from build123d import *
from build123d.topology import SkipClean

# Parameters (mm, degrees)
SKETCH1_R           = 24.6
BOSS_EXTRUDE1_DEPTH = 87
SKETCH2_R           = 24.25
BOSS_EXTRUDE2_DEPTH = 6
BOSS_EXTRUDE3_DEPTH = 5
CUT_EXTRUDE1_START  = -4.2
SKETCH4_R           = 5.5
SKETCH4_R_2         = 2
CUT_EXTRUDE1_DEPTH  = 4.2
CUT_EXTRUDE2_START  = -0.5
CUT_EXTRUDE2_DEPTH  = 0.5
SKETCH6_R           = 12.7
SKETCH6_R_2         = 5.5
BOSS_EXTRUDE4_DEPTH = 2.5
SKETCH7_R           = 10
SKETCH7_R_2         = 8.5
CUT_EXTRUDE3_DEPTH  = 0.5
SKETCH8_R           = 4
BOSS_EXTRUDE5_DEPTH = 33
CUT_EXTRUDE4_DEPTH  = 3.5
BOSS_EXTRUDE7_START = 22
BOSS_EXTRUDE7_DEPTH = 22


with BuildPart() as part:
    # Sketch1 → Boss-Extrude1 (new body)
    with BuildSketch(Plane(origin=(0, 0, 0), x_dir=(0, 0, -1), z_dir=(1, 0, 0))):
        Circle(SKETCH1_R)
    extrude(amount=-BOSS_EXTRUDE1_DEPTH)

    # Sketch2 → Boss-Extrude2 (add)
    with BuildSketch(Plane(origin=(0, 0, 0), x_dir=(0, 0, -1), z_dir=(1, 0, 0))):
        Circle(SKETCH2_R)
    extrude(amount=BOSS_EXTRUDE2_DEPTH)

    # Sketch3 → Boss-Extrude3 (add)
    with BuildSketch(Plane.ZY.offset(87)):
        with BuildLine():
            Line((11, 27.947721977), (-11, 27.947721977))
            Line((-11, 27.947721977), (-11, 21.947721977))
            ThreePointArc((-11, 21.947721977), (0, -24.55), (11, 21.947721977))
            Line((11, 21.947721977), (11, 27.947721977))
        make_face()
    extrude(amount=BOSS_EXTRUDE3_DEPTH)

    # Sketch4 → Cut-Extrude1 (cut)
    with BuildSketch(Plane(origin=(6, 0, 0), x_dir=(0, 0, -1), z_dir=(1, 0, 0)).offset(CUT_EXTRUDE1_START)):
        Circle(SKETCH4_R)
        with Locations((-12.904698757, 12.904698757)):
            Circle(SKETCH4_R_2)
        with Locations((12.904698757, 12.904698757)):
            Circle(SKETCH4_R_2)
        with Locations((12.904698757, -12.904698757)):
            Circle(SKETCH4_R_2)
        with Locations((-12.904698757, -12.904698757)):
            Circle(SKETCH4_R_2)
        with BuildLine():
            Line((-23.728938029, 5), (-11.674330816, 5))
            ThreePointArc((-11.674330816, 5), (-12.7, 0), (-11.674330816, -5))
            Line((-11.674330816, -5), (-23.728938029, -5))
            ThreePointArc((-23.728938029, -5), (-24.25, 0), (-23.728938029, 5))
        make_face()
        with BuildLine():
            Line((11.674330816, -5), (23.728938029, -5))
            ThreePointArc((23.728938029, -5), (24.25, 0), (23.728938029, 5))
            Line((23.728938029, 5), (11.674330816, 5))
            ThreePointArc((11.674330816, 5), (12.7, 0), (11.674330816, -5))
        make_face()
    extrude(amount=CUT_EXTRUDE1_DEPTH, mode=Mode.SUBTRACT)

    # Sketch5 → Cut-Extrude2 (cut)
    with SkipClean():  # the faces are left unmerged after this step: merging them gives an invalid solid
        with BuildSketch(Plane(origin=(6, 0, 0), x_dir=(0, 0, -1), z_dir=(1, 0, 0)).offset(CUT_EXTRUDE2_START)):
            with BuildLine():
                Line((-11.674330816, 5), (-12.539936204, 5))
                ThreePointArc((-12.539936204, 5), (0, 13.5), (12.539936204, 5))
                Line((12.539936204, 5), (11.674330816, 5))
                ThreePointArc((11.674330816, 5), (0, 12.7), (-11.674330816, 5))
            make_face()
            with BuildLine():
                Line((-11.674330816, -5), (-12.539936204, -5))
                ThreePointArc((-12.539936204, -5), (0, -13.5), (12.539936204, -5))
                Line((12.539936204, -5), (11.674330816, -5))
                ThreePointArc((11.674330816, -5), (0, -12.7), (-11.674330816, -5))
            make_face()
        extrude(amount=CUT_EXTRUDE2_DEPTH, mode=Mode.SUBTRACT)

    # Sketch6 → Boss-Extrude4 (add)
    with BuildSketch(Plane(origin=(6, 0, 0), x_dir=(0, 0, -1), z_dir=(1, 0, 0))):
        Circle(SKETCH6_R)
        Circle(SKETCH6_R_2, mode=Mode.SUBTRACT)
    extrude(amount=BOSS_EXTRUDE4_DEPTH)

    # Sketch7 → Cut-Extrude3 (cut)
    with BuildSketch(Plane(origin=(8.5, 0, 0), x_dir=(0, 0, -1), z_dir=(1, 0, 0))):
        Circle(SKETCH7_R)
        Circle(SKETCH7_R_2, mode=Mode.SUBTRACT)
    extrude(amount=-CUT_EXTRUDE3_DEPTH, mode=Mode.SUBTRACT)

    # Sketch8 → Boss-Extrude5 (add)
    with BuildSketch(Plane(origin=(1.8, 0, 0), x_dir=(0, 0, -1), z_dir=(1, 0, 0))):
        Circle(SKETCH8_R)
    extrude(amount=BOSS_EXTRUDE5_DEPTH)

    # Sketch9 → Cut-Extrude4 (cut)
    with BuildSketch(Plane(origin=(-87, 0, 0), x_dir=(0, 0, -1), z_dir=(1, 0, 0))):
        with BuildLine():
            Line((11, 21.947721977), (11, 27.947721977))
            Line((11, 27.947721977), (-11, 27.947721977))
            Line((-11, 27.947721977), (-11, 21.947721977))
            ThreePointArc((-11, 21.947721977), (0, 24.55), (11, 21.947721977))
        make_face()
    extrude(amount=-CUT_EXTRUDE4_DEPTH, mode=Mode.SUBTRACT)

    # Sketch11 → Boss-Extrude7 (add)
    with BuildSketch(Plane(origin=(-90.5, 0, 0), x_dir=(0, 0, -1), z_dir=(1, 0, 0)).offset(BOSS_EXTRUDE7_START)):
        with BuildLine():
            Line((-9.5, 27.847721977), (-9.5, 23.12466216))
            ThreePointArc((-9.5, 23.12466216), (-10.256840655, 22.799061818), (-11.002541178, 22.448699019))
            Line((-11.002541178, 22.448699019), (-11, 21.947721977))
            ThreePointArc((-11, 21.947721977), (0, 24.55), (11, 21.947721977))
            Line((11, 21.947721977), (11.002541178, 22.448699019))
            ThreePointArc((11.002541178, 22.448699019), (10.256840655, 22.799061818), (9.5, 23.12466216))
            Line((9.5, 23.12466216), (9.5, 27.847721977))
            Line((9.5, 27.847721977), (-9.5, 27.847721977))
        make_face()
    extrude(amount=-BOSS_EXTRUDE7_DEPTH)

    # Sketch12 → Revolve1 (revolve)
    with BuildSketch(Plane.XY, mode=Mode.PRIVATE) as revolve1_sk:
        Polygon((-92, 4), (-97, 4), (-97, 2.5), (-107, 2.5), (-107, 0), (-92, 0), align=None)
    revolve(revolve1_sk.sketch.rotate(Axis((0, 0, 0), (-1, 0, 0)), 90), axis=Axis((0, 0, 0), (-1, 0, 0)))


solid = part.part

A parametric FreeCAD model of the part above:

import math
import FreeCAD as App
import Part
import Sketcher
from FreeCAD import Vector


def add_polygon(sketch, points):
    """Adds a closed chain of lines whose ends are joined by coincident constraints."""
    first, n = sketch.GeometryCount, len(points)
    for a, b in zip(points, points[1:] + points[:1]):
        sketch.addGeometry(Part.LineSegment(App.Vector(*a, 0), App.Vector(*b, 0)), False)
    for i in range(n):
        sketch.addConstraint(Sketcher.Constraint("Coincident", first + i, 2, first + (i + 1) % n, 1))

doc = App.newDocument("Part")
body = doc.addObject("PartDesign::Body", "Body")

sketch1 = doc.addObject("Sketcher::SketchObject", "Sketch")
body.addObject(sketch1)
sketch1.AttachmentSupport = (doc.YZ_Plane, [""])
sketch1.MapMode = "FlatFace"
sketch1.addGeometry(Part.Circle(Vector(0, 0, 0), Vector(0, 0, 1), 25), False)
sketch1.addConstraint([
    Sketcher.Constraint("Coincident", 0, 3, -1, 1),
    Sketcher.Constraint("Diameter", 0, 49.2),
])
pad1 = doc.addObject("PartDesign::Pad", "Pad")
body.addObject(pad1)
pad1.Profile = sketch1
pad1.Length = 87
pad1.Reversed = True

sketch2 = doc.addObject("Sketcher::SketchObject", "Sketch001")
body.addObject(sketch2)
sketch2.AttachmentSupport = (doc.YZ_Plane, [""])
sketch2.MapMode = "FlatFace"
sketch2.addGeometry(Part.Circle(Vector(0, 0, 0), Vector(0, 0, 1), 24), False)
sketch2.addConstraint([
    Sketcher.Constraint("Coincident", 0, 3, -1, 1),
    Sketcher.Constraint("Diameter", 0, 48.5),
])
pad2 = doc.addObject("PartDesign::Pad", "Pad001")
body.addObject(pad2)
pad2.Profile = sketch2
pad2.Length = 6

sketch3 = doc.addObject("Sketcher::SketchObject", "Sketch002")
body.addObject(sketch3)
sketch3.AttachmentSupport = (doc.YZ_Plane, [""])
sketch3.MapMode = "FlatFace"
sketch3.AttachmentOffset = App.Placement(Vector(0, 0, -87), App.Rotation())
sketch3.addGeometry([
    Part.LineSegment(Vector(28, 11, 0), Vector(28, -11, 0)),
    Part.LineSegment(Vector(28, -11, 0), Vector(22, -11, 0)),
    Part.ArcOfCircle(Part.Circle(Vector(0, 0, 0), Vector(0, 0, 1), 25), math.radians(27), math.radians(333)),
    Part.LineSegment(Vector(22, 11, 0), Vector(28, 11, 0)),
], False)
sketch3.addConstraint([
    Sketcher.Constraint("Coincident", 0, 2, 1, 1),
    Sketcher.Constraint("Coincident", 1, 2, 2, 2),
    Sketcher.Constraint("Coincident", 2, 1, 3, 1),
    Sketcher.Constraint("Coincident", 3, 2, 0, 1),
    Sketcher.Constraint("Vertical", 0),
    Sketcher.Constraint("Horizontal", 1),
    Sketcher.Constraint("Horizontal", 3),
    Sketcher.Constraint("Coincident", 2, 3, -1, 1),
    Sketcher.Constraint("Vertical", 1, 2, 2, 1),
    Sketcher.Constraint("DistanceX", 1, 2, 1, 1, 6.0),
    Sketcher.Constraint("DistanceY", 0, 2, 0, 1, 22.0),
    Sketcher.Constraint("Radius", 2, 24.55),
])
pad3 = doc.addObject("PartDesign::Pad", "Pad002")
body.addObject(pad3)
pad3.Profile = sketch3
pad3.Length = 5
pad3.Reversed = True

sketch4 = doc.addObject("Sketcher::SketchObject", "Sketch003")
body.addObject(sketch4)
sketch4.AttachmentSupport = (doc.YZ_Plane, [""])
sketch4.MapMode = "FlatFace"
sketch4.AttachmentOffset = App.Placement(Vector(0, 0, 1.8), App.Rotation())
sketch4.addGeometry([
    Part.Circle(Vector(0, 0, 0), Vector(0, 0, 1), 5.5),
    Part.Circle(Vector(12.9, 12.9, 0), Vector(0, 0, 1), 2),
    Part.Circle(Vector(12.9, -12.9, 0), Vector(0, 0, 1), 2),
    Part.Circle(Vector(-12.9, -12.9, 0), Vector(0, 0, 1), 2),
    Part.Circle(Vector(-12.9, 12.9, 0), Vector(0, 0, 1), 2),
    Part.LineSegment(Vector(5, 11.7, 0), Vector(5, 23.7, 0)),
    Part.ArcOfCircle(Part.Circle(Vector(0, 0, 0), Vector(0, 0, 1), 24.2), math.radians(78), math.radians(102)),
    Part.LineSegment(Vector(-5, 23.7, 0), Vector(-5, 11.7, 0)),
    Part.ArcOfCircle(Part.Circle(Vector(0, 0, 0), Vector(0, 0, 1), 12.7), math.radians(67), math.radians(113)),
    Part.LineSegment(Vector(-5, -11.7, 0), Vector(-5, -23.7, 0)),
    Part.ArcOfCircle(Part.Circle(Vector(0, 0, 0), Vector(0, 0, 1), 24.2), math.radians(-102), math.radians(-78)),
    Part.LineSegment(Vector(5, -23.7, 0), Vector(5, -11.7, 0)),
    Part.ArcOfCircle(Part.Circle(Vector(0, 0, 0), Vector(0, 0, 1), 12.7), math.radians(-113), math.radians(-67)),
], False)
sketch4.addConstraint([
    Sketcher.Constraint("Coincident", 5, 2, 6, 1),
    Sketcher.Constraint("Coincident", 6, 2, 7, 1),
    Sketcher.Constraint("Coincident", 7, 2, 8, 2),
    Sketcher.Constraint("Coincident", 8, 1, 5, 1),
    Sketcher.Constraint("Coincident", 9, 2, 10, 1),
    Sketcher.Constraint("Coincident", 10, 2, 11, 1),
    Sketcher.Constraint("Coincident", 11, 2, 12, 2),
    Sketcher.Constraint("Coincident", 12, 1, 9, 1),
    Sketcher.Constraint("Vertical", 5),
    Sketcher.Constraint("Vertical", 7),
    Sketcher.Constraint("Vertical", 9),
    Sketcher.Constraint("Vertical", 11),
    Sketcher.Constraint("Coincident", 0, 3, -1, 1),
    Sketcher.Constraint("Coincident", 6, 3, -1, 1),
    Sketcher.Constraint("Coincident", 8, 3, -1, 1),
    Sketcher.Constraint("Coincident", 10, 3, -1, 1),
    Sketcher.Constraint("Coincident", 12, 3, -1, 1),
    Sketcher.Constraint("Equal", 1, 2),
    Sketcher.Constraint("Equal", 2, 3),
    Sketcher.Constraint("Equal", 3, 4),
    Sketcher.Constraint("Equal", 6, 10),
    Sketcher.Constraint("Equal", 8, 12),
    Sketcher.Constraint("Symmetric", 1, 3, 3, 3, -1, 1),
    Sketcher.Constraint("Symmetric", 2, 3, 4, 3, -1, 1),
    Sketcher.Constraint("Symmetric", 2, 3, 3, 3, -2),
    Sketcher.Constraint("Horizontal", 5, 2, 6, 2),
    Sketcher.Constraint("Horizontal", 9, 2, 10, 2),
    Sketcher.Constraint("Vertical", 7, 2, 9, 2),
    Sketcher.Constraint("Diameter", 0, 11.0),
    Sketcher.Constraint("Diameter", 1, 4.0),
    Sketcher.Constraint("Radius", 8, 12.7),
    Sketcher.Constraint("Radius", 6, 24.25),
    Sketcher.Constraint("DistanceX", -1, 1, 5, 2, 5.0),
    Sketcher.Constraint("DistanceX", -1, 1, 1, 3, 12.904699),
    Sketcher.Constraint("DistanceY", -1, 1, 1, 3, 12.904699),
])
pocket1 = doc.addObject("PartDesign::Pocket", "Pocket")
body.addObject(pocket1)
pocket1.Profile = sketch4
pocket1.Length = 4.2
pocket1.Reversed = True

sketch5 = doc.addObject("Sketcher::SketchObject", "Sketch004")
body.addObject(sketch5)
sketch5.AttachmentSupport = (doc.YZ_Plane, [""])
sketch5.MapMode = "FlatFace"
sketch5.AttachmentOffset = App.Placement(Vector(0, 0, 5.5), App.Rotation())
sketch5.addGeometry([
    Part.LineSegment(Vector(5, 12.5, 0), Vector(5, 11.7, 0)),
    Part.ArcOfCircle(Part.Circle(Vector(0, 0, 0), Vector(0, 0, 1), 12.7), math.radians(-67), math.radians(67)),
    Part.LineSegment(Vector(5, -11.7, 0), Vector(5, -12.5, 0)),
    Part.ArcOfCircle(Part.Circle(Vector(0, 0, 0), Vector(0, 0, 1), 13.5), math.radians(-68), math.radians(68)),
    Part.LineSegment(Vector(-5, 11.7, 0), Vector(-5, 12.5, 0)),
    Part.ArcOfCircle(Part.Circle(Vector(0, 0, 0), Vector(0, 0, 1), 13.5), math.radians(112), math.radians(248)),
    Part.LineSegment(Vector(-5, -12.5, 0), Vector(-5, -11.7, 0)),
    Part.ArcOfCircle(Part.Circle(Vector(0, 0, 0), Vector(0, 0, 1), 12.7), math.radians(113), math.radians(247)),
], False)
sketch5.addConstraint([
    Sketcher.Constraint("Coincident", 0, 2, 1, 2),
    Sketcher.Constraint("Coincident", 1, 1, 2, 1),
    Sketcher.Constraint("Coincident", 2, 2, 3, 1),
    Sketcher.Constraint("Coincident", 3, 2, 0, 1),
    Sketcher.Constraint("Coincident", 4, 2, 5, 1),
    Sketcher.Constraint("Coincident", 5, 2, 6, 1),
    Sketcher.Constraint("Coincident", 6, 2, 7, 2),
    Sketcher.Constraint("Coincident", 7, 1, 4, 1),
    Sketcher.Constraint("Vertical", 0),
    Sketcher.Constraint("Vertical", 2),
    Sketcher.Constraint("Vertical", 4),
    Sketcher.Constraint("Vertical", 6),
    Sketcher.Constraint("Coincident", 1, 3, -1, 1),
    Sketcher.Constraint("Coincident", 3, 3, -1, 1),
    Sketcher.Constraint("Coincident", 5, 3, -1, 1),
    Sketcher.Constraint("Coincident", 7, 3, -1, 1),
    Sketcher.Constraint("Equal", 3, 5),
    Sketcher.Constraint("Equal", 1, 7),
    Sketcher.Constraint("Horizontal", 3, 2, 4, 2),
    Sketcher.Constraint("Horizontal", 2, 2, 5, 2),
    Sketcher.Constraint("Vertical", 0, 2, 1, 1),
    Sketcher.Constraint("Radius", 1, 12.7),
    Sketcher.Constraint("Radius", 3, 13.5),
    Sketcher.Constraint("DistanceX", -1, 1, 0, 2, 5.0),
])
pocket2 = doc.addObject("PartDesign::Pocket", "Pocket001")
body.addObject(pocket2)
pocket2.Profile = sketch5
pocket2.Length = 0.5
pocket2.Reversed = True

sketch6 = doc.addObject("Sketcher::SketchObject", "Sketch005")
body.addObject(sketch6)
sketch6.AttachmentSupport = (doc.YZ_Plane, [""])
sketch6.MapMode = "FlatFace"
sketch6.AttachmentOffset = App.Placement(Vector(0, 0, 6), App.Rotation())
sketch6.addGeometry([
    Part.Circle(Vector(0, 0, 0), Vector(0, 0, 1), 13),
    Part.Circle(Vector(0, 0, 0), Vector(0, 0, 1), 6),
], False)
sketch6.addConstraint([
    Sketcher.Constraint("Coincident", 0, 3, -1, 1),
    Sketcher.Constraint("Coincident", 1, 3, -1, 1),
    Sketcher.Constraint("Diameter", 1, 11.0),
    Sketcher.Constraint("Diameter", 0, 25.4),
])
pad4 = doc.addObject("PartDesign::Pad", "Pad003")
body.addObject(pad4)
pad4.Profile = sketch6
pad4.Length = 2.5

sketch7 = doc.addObject("Sketcher::SketchObject", "Sketch006")
body.addObject(sketch7)
sketch7.AttachmentSupport = (doc.YZ_Plane, [""])
sketch7.MapMode = "FlatFace"
sketch7.AttachmentOffset = App.Placement(Vector(0, 0, 8.5), App.Rotation())
sketch7.addGeometry([
    Part.Circle(Vector(0, 0, 0), Vector(0, 0, 1), 10),
    Part.Circle(Vector(0, 0, 0), Vector(0, 0, 1), 8),
], False)
sketch7.addConstraint([
    Sketcher.Constraint("Coincident", 0, 3, -1, 1),
    Sketcher.Constraint("Coincident", 1, 3, -1, 1),
    Sketcher.Constraint("Diameter", 0, 20.0),
    Sketcher.Constraint("Diameter", 1, 17.0),
])
pocket3 = doc.addObject("PartDesign::Pocket", "Pocket002")
body.addObject(pocket3)
pocket3.Profile = sketch7
pocket3.Length = 0.5

sketch8 = doc.addObject("Sketcher::SketchObject", "Sketch007")
body.addObject(sketch8)
sketch8.AttachmentSupport = (doc.YZ_Plane, [""])
sketch8.MapMode = "FlatFace"
sketch8.AttachmentOffset = App.Placement(Vector(0, 0, 1.8), App.Rotation())
sketch8.addGeometry(Part.Circle(Vector(0, 0, 0), Vector(0, 0, 1), 4), False)
sketch8.addConstraint([
    Sketcher.Constraint("Coincident", 0, 3, -1, 1),
    Sketcher.Constraint("Diameter", 0, 8.0),
])
pad5 = doc.addObject("PartDesign::Pad", "Pad004")
body.addObject(pad5)
pad5.Profile = sketch8
pad5.Length = 33

sketch9 = doc.addObject("Sketcher::SketchObject", "Sketch008")
body.addObject(sketch9)
sketch9.AttachmentSupport = (doc.YZ_Plane, [""])
sketch9.MapMode = "FlatFace"
sketch9.AttachmentOffset = App.Placement(Vector(0, 0, -87), App.Rotation())
sketch9.addGeometry([
    Part.LineSegment(Vector(22, -11, 0), Vector(28, -11, 0)),
    Part.LineSegment(Vector(28, -11, 0), Vector(28, 11, 0)),
    Part.LineSegment(Vector(28, 11, 0), Vector(22, 11, 0)),
    Part.ArcOfCircle(Part.Circle(Vector(0, 0, 0), Vector(0, 0, 1), 25), math.radians(-27), math.radians(27)),
], False)
sketch9.addConstraint([
    Sketcher.Constraint("Coincident", 0, 2, 1, 1),
    Sketcher.Constraint("Coincident", 1, 2, 2, 1),
    Sketcher.Constraint("Coincident", 2, 2, 3, 2),
    Sketcher.Constraint("Coincident", 3, 1, 0, 1),
    Sketcher.Constraint("Horizontal", 0),
    Sketcher.Constraint("Vertical", 1),
    Sketcher.Constraint("Horizontal", 2),
    Sketcher.Constraint("Coincident", 3, 3, -1, 1),
    Sketcher.Constraint("Vertical", 2, 2, 3, 1),
    Sketcher.Constraint("DistanceX", 0, 1, 0, 2, 6.0),
    Sketcher.Constraint("DistanceY", 1, 1, 1, 2, 22.0),
    Sketcher.Constraint("Radius", 3, 24.55),
])
pocket4 = doc.addObject("PartDesign::Pocket", "Pocket003")
body.addObject(pocket4)
pocket4.Profile = sketch9
pocket4.Length = 3.5

sketch10 = doc.addObject("Sketcher::SketchObject", "Sketch009")
body.addObject(sketch10)
sketch10.AttachmentSupport = (doc.YZ_Plane, [""])
sketch10.MapMode = "FlatFace"
sketch10.AttachmentOffset = App.Placement(Vector(0, 0, -68.5), App.Rotation())
sketch10.addGeometry([
    Part.LineSegment(Vector(27.8, 9.5, 0), Vector(23.1, 9.5, 0)),
    Part.ArcOfCircle(Part.Circle(Vector(0, 0, 0), Vector(0, 0, 1), 25), math.radians(22.33), math.radians(26.11)),
    Part.LineSegment(Vector(22.4, 11, 0), Vector(21.9, 11, 0)),
    Part.ArcOfCircle(Part.Circle(Vector(0, 0, 0), Vector(0, 0, 1), 24.5), math.radians(-27), math.radians(27)),
    Part.LineSegment(Vector(21.9, -11, 0), Vector(22.4, -11, 0)),
    Part.ArcOfCircle(Part.Circle(Vector(0, 0, 0), Vector(0, 0, 1), 25), math.radians(-26.11), math.radians(-22.33)),
    Part.LineSegment(Vector(23.1, -9.5, 0), Vector(27.8, -9.5, 0)),
    Part.LineSegment(Vector(27.8, -9.5, 0), Vector(27.8, 9.5, 0)),
], False)
sketch10.addConstraint([
    Sketcher.Constraint("Coincident", 0, 2, 1, 1),
    Sketcher.Constraint("Coincident", 1, 2, 2, 1),
    Sketcher.Constraint("Coincident", 2, 2, 3, 2),
    Sketcher.Constraint("Coincident", 3, 1, 4, 1),
    Sketcher.Constraint("Coincident", 4, 2, 5, 1),
    Sketcher.Constraint("Coincident", 5, 2, 6, 1),
    Sketcher.Constraint("Coincident", 6, 2, 7, 1),
    Sketcher.Constraint("Coincident", 7, 2, 0, 1),
    Sketcher.Constraint("Horizontal", 0),
    Sketcher.Constraint("Horizontal", 6),
    Sketcher.Constraint("Vertical", 7),
    Sketcher.Constraint("Coincident", 1, 3, -1, 1),
    Sketcher.Constraint("Coincident", 3, 3, -1, 1),
    Sketcher.Constraint("Coincident", 5, 3, -1, 1),
    Sketcher.Constraint("Equal", 1, 5),
    Sketcher.Constraint("Vertical", 2, 2, 3, 1),
    Sketcher.Constraint("Vertical", 1, 2, 4, 2),
    Sketcher.Constraint("Vertical", 0, 2, 5, 2),
    Sketcher.Constraint("Radius", 1, 25.000001),
    Sketcher.Constraint("DistanceY", 7, 1, 7, 2, 19.0),
    Sketcher.Constraint("Radius", 3, 24.55),
    Sketcher.Constraint("DistanceY", -1, 1, 2, 2, 11.0),
    Sketcher.Constraint("DistanceX", 3, 1, 6, 2, 5.9),
    Sketcher.Constraint("DistanceX", -1, 1, 1, 2, 22.448699),
])
pad6 = doc.addObject("PartDesign::Pad", "Pad005")
body.addObject(pad6)
pad6.Profile = sketch10
pad6.Length = 22
pad6.Reversed = True

sketch11 = doc.addObject("Sketcher::SketchObject", "Sketch010")
body.addObject(sketch11)
sketch11.AttachmentSupport = (doc.XY_Plane, [""])
sketch11.MapMode = "FlatFace"
add_polygon(sketch11, [(-92, 4), (-97, 4), (-97, 2.5), (-107, 2.5), (-107, 0), (-92, 0)])
sketch11.addConstraint([
    Sketcher.Constraint("Horizontal", 0),
    Sketcher.Constraint("Vertical", 1),
    Sketcher.Constraint("Horizontal", 2),
    Sketcher.Constraint("Vertical", 3),
    Sketcher.Constraint("Horizontal", 4),
    Sketcher.Constraint("Vertical", 5),
    Sketcher.Constraint("PointOnObject", 3, 2, -1),
    Sketcher.Constraint("DistanceX", 0, 2, 0, 1, 5.0),
    Sketcher.Constraint("DistanceX", 2, 2, 2, 1, 10.0),
    Sketcher.Constraint("DistanceY", 5, 1, 5, 2, 4.0),
    Sketcher.Constraint("DistanceY", 1, 2, 1, 1, 1.5),
    Sketcher.Constraint("DistanceX", 0, 2, -1, 1, 97.0),
])
revolution = doc.addObject("PartDesign::Revolution", "Revolution")
body.addObject(revolution)
revolution.Profile = sketch11
revolution.ReferenceAxis = (sketch11, ["H_Axis"])
revolution.Angle = 360

doc.recompute()
